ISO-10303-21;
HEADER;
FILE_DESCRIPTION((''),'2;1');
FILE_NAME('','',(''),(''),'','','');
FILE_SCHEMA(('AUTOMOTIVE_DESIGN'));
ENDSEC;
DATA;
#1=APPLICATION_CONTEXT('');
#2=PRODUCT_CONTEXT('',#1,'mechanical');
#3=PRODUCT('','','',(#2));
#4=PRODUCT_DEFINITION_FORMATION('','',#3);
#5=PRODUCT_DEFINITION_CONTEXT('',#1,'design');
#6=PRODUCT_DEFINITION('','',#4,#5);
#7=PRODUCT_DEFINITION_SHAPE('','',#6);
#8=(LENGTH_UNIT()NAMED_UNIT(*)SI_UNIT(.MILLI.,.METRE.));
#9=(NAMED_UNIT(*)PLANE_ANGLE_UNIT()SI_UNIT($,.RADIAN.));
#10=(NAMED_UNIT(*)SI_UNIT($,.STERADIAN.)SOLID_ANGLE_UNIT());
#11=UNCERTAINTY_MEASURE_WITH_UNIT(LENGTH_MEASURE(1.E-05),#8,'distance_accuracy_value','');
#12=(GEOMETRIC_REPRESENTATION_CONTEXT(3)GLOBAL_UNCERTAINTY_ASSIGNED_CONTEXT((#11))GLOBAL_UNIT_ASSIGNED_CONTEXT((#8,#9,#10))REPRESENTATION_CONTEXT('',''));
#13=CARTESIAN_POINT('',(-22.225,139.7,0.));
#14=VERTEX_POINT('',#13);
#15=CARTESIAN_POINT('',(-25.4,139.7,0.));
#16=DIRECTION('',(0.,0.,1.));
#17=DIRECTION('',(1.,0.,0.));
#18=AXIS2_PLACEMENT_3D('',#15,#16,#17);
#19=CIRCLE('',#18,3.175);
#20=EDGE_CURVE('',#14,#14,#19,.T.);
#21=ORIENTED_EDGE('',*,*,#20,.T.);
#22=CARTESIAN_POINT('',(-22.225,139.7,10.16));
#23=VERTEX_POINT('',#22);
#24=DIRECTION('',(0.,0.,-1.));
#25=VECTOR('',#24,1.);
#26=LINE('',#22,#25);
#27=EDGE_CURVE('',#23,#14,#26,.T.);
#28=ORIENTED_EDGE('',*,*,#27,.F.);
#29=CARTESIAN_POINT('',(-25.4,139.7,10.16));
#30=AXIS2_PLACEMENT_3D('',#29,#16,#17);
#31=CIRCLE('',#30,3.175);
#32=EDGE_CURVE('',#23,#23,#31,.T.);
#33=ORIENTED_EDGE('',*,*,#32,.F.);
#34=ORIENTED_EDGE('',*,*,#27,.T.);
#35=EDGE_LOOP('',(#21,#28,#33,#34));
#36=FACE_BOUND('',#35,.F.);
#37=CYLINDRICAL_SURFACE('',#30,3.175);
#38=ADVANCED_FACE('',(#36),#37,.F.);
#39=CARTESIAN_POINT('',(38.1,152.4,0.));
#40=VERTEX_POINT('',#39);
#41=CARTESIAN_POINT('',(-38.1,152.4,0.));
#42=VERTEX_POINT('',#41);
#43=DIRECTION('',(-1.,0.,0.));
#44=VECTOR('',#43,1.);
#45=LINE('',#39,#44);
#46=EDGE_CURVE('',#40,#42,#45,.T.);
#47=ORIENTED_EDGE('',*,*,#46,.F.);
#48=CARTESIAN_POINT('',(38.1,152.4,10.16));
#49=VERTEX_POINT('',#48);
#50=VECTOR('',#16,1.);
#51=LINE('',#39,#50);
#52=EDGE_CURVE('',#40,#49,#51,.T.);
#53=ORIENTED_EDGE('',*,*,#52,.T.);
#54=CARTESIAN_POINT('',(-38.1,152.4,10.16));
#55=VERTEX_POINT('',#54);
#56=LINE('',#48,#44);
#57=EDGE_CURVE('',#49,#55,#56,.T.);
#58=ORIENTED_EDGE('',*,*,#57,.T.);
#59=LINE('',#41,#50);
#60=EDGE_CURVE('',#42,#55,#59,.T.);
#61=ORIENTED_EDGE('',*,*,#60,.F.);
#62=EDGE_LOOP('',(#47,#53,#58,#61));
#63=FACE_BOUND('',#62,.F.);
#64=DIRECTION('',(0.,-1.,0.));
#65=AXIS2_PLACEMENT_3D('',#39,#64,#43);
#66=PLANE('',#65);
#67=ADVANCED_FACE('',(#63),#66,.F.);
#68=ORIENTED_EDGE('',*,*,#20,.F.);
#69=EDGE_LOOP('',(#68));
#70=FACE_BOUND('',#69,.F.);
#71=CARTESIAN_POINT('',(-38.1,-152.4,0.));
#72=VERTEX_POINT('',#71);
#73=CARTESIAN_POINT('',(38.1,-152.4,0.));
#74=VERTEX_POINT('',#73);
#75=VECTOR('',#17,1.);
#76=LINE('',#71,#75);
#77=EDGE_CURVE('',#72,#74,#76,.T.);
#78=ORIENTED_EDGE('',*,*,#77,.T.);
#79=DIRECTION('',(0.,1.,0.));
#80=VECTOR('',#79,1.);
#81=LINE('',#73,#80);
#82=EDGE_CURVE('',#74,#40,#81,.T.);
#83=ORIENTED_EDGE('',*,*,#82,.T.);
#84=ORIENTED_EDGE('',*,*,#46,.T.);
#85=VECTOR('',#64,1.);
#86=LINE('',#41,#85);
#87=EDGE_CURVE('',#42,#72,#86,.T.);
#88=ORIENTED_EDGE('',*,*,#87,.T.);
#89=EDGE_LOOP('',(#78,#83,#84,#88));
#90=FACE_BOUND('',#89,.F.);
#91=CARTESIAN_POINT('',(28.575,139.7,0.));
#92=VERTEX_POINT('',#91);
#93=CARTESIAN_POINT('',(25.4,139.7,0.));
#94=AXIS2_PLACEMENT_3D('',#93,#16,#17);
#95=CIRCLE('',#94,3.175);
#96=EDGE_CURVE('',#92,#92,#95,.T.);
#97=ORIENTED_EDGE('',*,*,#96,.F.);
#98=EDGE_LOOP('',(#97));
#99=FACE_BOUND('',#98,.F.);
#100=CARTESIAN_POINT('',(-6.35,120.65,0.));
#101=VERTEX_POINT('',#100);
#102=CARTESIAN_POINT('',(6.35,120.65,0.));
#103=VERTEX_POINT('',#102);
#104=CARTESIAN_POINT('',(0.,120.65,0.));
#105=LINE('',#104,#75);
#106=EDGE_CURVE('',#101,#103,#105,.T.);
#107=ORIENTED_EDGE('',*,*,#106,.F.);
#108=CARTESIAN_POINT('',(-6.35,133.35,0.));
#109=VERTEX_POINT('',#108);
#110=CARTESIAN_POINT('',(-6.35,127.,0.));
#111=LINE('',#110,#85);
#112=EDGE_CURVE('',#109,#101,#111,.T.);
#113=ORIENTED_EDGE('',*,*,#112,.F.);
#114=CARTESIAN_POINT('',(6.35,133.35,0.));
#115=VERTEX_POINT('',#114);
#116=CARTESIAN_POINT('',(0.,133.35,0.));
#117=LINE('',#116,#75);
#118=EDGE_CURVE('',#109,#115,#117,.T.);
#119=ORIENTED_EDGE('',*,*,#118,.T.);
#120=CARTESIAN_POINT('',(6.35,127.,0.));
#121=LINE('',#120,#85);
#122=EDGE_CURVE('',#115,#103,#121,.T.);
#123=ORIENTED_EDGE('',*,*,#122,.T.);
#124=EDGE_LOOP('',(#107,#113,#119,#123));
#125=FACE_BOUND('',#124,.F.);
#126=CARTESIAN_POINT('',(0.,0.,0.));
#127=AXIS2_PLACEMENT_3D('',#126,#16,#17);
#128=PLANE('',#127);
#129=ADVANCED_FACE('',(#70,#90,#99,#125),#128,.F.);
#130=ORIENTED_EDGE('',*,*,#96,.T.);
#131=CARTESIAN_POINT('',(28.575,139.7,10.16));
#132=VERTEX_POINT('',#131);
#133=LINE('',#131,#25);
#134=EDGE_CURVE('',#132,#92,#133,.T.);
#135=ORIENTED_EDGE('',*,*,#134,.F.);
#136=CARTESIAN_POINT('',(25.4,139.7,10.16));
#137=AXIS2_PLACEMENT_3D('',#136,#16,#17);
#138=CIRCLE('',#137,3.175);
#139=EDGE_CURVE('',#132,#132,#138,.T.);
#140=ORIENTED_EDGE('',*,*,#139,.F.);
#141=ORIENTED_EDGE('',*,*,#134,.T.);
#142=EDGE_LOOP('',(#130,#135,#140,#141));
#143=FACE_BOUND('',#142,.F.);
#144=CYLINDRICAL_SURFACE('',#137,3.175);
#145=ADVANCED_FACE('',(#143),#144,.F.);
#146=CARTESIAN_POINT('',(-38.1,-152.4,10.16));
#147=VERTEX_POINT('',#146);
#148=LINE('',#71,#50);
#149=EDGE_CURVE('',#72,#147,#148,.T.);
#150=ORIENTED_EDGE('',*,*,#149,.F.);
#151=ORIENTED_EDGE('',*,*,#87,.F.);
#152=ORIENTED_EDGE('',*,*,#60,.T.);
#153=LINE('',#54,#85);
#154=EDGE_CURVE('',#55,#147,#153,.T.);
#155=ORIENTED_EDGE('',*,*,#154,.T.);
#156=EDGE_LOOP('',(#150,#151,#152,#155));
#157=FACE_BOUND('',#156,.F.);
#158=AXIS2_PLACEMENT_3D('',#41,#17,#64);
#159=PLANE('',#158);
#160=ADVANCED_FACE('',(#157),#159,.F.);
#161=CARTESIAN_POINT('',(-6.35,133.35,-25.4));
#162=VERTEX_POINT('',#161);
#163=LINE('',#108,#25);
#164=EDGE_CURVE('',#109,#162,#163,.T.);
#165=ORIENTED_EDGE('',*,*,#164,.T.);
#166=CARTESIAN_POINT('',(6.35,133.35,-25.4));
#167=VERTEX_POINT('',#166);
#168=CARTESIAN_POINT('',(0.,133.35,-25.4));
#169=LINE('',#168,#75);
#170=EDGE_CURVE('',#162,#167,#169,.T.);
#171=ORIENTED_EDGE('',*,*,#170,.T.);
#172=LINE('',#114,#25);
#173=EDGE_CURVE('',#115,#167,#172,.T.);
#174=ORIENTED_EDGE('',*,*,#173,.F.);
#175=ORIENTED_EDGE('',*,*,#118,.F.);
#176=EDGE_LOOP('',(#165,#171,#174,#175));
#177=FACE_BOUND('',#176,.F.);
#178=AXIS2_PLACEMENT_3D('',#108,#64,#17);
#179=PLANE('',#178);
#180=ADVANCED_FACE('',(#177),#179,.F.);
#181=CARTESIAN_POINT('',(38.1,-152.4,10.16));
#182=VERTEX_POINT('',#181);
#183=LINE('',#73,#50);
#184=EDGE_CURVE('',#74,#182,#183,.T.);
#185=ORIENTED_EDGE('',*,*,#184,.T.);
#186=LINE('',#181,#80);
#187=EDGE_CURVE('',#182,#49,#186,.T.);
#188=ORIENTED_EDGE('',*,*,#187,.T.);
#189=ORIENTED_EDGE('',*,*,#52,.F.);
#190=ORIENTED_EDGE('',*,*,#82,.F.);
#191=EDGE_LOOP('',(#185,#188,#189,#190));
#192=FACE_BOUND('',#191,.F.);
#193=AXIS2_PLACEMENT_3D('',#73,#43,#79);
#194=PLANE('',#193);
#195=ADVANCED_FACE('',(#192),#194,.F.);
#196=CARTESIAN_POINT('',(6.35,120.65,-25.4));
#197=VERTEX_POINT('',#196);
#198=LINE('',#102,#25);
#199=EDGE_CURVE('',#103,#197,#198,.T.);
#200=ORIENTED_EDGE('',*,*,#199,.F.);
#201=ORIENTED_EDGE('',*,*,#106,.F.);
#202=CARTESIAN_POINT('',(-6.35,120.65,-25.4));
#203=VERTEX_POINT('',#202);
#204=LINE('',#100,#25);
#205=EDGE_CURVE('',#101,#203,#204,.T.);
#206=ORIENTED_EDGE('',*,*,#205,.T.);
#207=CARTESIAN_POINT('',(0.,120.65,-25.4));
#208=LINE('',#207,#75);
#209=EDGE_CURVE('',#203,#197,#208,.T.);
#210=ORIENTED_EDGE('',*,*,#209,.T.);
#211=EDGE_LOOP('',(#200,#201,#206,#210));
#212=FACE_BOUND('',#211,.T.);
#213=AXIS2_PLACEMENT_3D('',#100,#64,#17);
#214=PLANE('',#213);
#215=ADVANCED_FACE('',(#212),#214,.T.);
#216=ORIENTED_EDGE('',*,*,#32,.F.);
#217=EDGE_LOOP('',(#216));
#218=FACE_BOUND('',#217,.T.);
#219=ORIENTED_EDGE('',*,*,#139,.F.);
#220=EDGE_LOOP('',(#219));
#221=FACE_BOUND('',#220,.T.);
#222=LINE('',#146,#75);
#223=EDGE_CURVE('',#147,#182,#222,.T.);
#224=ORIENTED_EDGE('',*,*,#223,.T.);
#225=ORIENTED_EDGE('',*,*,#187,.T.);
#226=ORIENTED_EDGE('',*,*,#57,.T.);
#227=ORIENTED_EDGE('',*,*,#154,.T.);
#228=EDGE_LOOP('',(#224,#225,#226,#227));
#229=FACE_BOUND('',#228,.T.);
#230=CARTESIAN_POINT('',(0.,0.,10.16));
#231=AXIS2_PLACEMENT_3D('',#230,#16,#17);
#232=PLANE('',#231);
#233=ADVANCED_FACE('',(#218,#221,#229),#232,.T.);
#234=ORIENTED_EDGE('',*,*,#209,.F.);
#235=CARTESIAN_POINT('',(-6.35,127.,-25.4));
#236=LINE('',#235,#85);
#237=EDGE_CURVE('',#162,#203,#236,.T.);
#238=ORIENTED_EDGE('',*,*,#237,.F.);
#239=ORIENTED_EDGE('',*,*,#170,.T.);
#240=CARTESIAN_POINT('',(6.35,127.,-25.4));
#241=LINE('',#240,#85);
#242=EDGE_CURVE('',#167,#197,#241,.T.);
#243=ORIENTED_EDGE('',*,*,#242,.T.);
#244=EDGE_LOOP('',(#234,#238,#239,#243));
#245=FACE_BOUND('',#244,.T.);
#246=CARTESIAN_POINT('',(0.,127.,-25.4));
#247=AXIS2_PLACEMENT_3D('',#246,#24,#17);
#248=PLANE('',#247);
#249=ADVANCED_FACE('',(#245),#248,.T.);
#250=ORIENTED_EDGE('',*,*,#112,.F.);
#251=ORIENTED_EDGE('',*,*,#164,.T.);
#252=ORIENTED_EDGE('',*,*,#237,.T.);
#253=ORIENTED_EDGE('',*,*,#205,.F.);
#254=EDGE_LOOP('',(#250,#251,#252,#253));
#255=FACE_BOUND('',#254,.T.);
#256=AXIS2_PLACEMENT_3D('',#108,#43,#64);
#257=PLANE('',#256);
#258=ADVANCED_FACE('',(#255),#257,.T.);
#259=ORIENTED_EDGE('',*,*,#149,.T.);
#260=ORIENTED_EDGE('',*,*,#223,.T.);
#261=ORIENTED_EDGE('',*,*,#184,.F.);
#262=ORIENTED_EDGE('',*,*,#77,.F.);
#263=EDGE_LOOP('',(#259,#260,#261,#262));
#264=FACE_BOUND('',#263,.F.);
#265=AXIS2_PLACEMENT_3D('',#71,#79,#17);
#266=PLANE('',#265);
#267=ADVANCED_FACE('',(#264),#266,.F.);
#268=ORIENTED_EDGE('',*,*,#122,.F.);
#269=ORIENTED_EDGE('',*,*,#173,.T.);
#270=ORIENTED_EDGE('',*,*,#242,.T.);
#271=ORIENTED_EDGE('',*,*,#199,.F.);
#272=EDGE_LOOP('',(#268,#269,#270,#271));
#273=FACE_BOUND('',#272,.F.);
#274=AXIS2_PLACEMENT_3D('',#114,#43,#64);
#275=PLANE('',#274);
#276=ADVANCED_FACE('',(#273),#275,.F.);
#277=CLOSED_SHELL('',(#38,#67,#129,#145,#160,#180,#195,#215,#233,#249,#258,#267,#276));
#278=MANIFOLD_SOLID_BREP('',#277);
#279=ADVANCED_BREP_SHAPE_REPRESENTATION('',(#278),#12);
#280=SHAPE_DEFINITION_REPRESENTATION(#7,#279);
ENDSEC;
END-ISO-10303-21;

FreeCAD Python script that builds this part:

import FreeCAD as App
import Part
import Sketcher

V = App.Vector
Q = App.Units.Quantity

doc = App.newDocument("Part")
params = doc.addObject("Spreadsheet::Sheet", "Params")
for row, (alias, value) in enumerate([
    ("sketch1_width", "3 in"),
    ("sketch1_height", "12 in"),
    ("pad1_length", "0.4 in"),
    ("sketch2_diameter", "0.25 in"),
    ("pocket1_length", "1 in"),
    ("sketch3_width", "0.5 in"),
    ("pad2_length", "1 in"),
], start=1):
    params.set(f"A{row}", alias)
    params.set(f"B{row}", "=" + value)
    params.setAlias(f"B{row}", alias)

body = doc.addObject("PartDesign::Body", "Body")

# Sketch on XY plane
sketch1 = body.newObject("Sketcher::SketchObject", "Sketch")
sketch1.AttachmentSupport = (doc.getObject("XY_Plane"), [""])
sketch1.MapMode = "FlatFace"
sketch1.addGeometry(Part.LineSegment(V(-38, 152, 0), V(-38, -152, 0)), False)
sketch1.addGeometry(Part.LineSegment(V(-38, -152, 0), V(38, -152, 0)), False)
sketch1.addGeometry(Part.LineSegment(V(38, -152, 0), V(38, 152, 0)), False)
sketch1.addGeometry(Part.LineSegment(V(38, 152, 0), V(-38, 152, 0)), False)
sketch1.addConstraint(Sketcher.Constraint("Coincident", 0, 2, 1, 1))
sketch1.addConstraint(Sketcher.Constraint("Coincident", 1, 2, 2, 1))
sketch1.addConstraint(Sketcher.Constraint("Coincident", 2, 2, 3, 1))
sketch1.addConstraint(Sketcher.Constraint("Coincident", 3, 2, 0, 1))
sketch1.addConstraint(Sketcher.Constraint("Vertical", 0))
sketch1.addConstraint(Sketcher.Constraint("Horizontal", 1))
sketch1.addConstraint(Sketcher.Constraint("Vertical", 2))
sketch1.addConstraint(Sketcher.Constraint("Horizontal", 3))
sketch1.addConstraint(Sketcher.Constraint("Symmetric", 0, 2, 2, 2, -1, 1))
sketch1.addConstraint(Sketcher.Constraint("DistanceX", 1, 1, 1, 2, Q("3 in")))
sketch1.addConstraint(Sketcher.Constraint("DistanceY", 0, 2, 0, 1, Q("12 in")))
sketch1.setExpression("Constraints[9]", "Params.sketch1_width")
sketch1.setExpression("Constraints[10]", "Params.sketch1_height")
pad1 = body.newObject("PartDesign::Pad", "Pad")
pad1.Profile = sketch1
pad1.setExpression("Length", "Params.pad1_length")

# Sketch on XY plane
sketch2 = body.newObject("Sketcher::SketchObject", "Sketch001")
sketch2.AttachmentSupport = (doc.getObject("XY_Plane"), [""])
sketch2.MapMode = "FlatFace"
sketch2.AttachmentOffset = App.Placement(V(0, 0, 0.4 * 25.4), App.Rotation())
sketch2.addGeometry(Part.Circle(V(25.4, 139.7, 0), V(0, 0, 1), 3.2), False)
sketch2.addGeometry(Part.Circle(V(-25.4, 139.7, 0), V(0, 0, 1), 3.2), False)
sketch2.addConstraint(Sketcher.Constraint("Equal", 0, 1))
sketch2.addConstraint(Sketcher.Constraint("Symmetric", 0, 3, 1, 3, -2))
sketch2.addConstraint(Sketcher.Constraint("Diameter", 0, Q("0.25 in")))
sketch2.addConstraint(Sketcher.Constraint("DistanceX", -1, 1, 0, 3, Q("1 in")))
sketch2.addConstraint(Sketcher.Constraint("DistanceY", -1, 1, 0, 3, Q("5.5 in")))
sketch2.setExpression("Constraints[2]", "Params.sketch2_diameter")
pocket1 = body.newObject("PartDesign::Pocket", "Pocket")
pocket1.Profile = sketch2
pocket1.setExpression("Length", "Params.pocket1_length")

# Sketch on XY plane
sketch3 = body.newObject("Sketcher::SketchObject", "Sketch002")
sketch3.AttachmentSupport = (doc.getObject("XY_Plane"), [""])
sketch3.MapMode = "FlatFace"
sketch3.addGeometry(Part.LineSegment(V(-6, 121, 0), V(-6, 133, 0)), False)
sketch3.addGeometry(Part.LineSegment(V(-6, 133, 0), V(6, 133, 0)), False)
sketch3.addGeometry(Part.LineSegment(V(6, 133, 0), V(6, 121, 0)), False)
sketch3.addGeometry(Part.LineSegment(V(6, 121, 0), V(-6, 121, 0)), False)
sketch3.addConstraint(Sketcher.Constraint("Coincident", 0, 2, 1, 1))
sketch3.addConstraint(Sketcher.Constraint("Coincident", 1, 2, 2, 1))
sketch3.addConstraint(Sketcher.Constraint("Coincident", 2, 2, 3, 1))
sketch3.addConstraint(Sketcher.Constraint("Coincident", 3, 2, 0, 1))
sketch3.addConstraint(Sketcher.Constraint("Vertical", 0))
sketch3.addConstraint(Sketcher.Constraint("Horizontal", 1))
sketch3.addConstraint(Sketcher.Constraint("Vertical", 2))
sketch3.addConstraint(Sketcher.Constraint("Horizontal", 3))
sketch3.addConstraint(Sketcher.Constraint("Equal", 3, 0))
sketch3.addConstraint(Sketcher.Constraint("DistanceX", 1, 1, 1, 2, Q("0.5 in")))
sketch3.addConstraint(Sketcher.Constraint("DistanceX", 0, 2, -1, 1, Q("0.25 in")))
sketch3.addConstraint(Sketcher.Constraint("DistanceY", -1, 1, 0, 2, Q("5.25 in")))
sketch3.setExpression("Constraints[9]", "Params.sketch3_width")
pad2 = body.newObject("PartDesign::Pad", "Pad001")
pad2.Profile = sketch3
pad2.setExpression("Length", "Params.pad2_length")
pad2.Reversed = True

doc.recompute()
